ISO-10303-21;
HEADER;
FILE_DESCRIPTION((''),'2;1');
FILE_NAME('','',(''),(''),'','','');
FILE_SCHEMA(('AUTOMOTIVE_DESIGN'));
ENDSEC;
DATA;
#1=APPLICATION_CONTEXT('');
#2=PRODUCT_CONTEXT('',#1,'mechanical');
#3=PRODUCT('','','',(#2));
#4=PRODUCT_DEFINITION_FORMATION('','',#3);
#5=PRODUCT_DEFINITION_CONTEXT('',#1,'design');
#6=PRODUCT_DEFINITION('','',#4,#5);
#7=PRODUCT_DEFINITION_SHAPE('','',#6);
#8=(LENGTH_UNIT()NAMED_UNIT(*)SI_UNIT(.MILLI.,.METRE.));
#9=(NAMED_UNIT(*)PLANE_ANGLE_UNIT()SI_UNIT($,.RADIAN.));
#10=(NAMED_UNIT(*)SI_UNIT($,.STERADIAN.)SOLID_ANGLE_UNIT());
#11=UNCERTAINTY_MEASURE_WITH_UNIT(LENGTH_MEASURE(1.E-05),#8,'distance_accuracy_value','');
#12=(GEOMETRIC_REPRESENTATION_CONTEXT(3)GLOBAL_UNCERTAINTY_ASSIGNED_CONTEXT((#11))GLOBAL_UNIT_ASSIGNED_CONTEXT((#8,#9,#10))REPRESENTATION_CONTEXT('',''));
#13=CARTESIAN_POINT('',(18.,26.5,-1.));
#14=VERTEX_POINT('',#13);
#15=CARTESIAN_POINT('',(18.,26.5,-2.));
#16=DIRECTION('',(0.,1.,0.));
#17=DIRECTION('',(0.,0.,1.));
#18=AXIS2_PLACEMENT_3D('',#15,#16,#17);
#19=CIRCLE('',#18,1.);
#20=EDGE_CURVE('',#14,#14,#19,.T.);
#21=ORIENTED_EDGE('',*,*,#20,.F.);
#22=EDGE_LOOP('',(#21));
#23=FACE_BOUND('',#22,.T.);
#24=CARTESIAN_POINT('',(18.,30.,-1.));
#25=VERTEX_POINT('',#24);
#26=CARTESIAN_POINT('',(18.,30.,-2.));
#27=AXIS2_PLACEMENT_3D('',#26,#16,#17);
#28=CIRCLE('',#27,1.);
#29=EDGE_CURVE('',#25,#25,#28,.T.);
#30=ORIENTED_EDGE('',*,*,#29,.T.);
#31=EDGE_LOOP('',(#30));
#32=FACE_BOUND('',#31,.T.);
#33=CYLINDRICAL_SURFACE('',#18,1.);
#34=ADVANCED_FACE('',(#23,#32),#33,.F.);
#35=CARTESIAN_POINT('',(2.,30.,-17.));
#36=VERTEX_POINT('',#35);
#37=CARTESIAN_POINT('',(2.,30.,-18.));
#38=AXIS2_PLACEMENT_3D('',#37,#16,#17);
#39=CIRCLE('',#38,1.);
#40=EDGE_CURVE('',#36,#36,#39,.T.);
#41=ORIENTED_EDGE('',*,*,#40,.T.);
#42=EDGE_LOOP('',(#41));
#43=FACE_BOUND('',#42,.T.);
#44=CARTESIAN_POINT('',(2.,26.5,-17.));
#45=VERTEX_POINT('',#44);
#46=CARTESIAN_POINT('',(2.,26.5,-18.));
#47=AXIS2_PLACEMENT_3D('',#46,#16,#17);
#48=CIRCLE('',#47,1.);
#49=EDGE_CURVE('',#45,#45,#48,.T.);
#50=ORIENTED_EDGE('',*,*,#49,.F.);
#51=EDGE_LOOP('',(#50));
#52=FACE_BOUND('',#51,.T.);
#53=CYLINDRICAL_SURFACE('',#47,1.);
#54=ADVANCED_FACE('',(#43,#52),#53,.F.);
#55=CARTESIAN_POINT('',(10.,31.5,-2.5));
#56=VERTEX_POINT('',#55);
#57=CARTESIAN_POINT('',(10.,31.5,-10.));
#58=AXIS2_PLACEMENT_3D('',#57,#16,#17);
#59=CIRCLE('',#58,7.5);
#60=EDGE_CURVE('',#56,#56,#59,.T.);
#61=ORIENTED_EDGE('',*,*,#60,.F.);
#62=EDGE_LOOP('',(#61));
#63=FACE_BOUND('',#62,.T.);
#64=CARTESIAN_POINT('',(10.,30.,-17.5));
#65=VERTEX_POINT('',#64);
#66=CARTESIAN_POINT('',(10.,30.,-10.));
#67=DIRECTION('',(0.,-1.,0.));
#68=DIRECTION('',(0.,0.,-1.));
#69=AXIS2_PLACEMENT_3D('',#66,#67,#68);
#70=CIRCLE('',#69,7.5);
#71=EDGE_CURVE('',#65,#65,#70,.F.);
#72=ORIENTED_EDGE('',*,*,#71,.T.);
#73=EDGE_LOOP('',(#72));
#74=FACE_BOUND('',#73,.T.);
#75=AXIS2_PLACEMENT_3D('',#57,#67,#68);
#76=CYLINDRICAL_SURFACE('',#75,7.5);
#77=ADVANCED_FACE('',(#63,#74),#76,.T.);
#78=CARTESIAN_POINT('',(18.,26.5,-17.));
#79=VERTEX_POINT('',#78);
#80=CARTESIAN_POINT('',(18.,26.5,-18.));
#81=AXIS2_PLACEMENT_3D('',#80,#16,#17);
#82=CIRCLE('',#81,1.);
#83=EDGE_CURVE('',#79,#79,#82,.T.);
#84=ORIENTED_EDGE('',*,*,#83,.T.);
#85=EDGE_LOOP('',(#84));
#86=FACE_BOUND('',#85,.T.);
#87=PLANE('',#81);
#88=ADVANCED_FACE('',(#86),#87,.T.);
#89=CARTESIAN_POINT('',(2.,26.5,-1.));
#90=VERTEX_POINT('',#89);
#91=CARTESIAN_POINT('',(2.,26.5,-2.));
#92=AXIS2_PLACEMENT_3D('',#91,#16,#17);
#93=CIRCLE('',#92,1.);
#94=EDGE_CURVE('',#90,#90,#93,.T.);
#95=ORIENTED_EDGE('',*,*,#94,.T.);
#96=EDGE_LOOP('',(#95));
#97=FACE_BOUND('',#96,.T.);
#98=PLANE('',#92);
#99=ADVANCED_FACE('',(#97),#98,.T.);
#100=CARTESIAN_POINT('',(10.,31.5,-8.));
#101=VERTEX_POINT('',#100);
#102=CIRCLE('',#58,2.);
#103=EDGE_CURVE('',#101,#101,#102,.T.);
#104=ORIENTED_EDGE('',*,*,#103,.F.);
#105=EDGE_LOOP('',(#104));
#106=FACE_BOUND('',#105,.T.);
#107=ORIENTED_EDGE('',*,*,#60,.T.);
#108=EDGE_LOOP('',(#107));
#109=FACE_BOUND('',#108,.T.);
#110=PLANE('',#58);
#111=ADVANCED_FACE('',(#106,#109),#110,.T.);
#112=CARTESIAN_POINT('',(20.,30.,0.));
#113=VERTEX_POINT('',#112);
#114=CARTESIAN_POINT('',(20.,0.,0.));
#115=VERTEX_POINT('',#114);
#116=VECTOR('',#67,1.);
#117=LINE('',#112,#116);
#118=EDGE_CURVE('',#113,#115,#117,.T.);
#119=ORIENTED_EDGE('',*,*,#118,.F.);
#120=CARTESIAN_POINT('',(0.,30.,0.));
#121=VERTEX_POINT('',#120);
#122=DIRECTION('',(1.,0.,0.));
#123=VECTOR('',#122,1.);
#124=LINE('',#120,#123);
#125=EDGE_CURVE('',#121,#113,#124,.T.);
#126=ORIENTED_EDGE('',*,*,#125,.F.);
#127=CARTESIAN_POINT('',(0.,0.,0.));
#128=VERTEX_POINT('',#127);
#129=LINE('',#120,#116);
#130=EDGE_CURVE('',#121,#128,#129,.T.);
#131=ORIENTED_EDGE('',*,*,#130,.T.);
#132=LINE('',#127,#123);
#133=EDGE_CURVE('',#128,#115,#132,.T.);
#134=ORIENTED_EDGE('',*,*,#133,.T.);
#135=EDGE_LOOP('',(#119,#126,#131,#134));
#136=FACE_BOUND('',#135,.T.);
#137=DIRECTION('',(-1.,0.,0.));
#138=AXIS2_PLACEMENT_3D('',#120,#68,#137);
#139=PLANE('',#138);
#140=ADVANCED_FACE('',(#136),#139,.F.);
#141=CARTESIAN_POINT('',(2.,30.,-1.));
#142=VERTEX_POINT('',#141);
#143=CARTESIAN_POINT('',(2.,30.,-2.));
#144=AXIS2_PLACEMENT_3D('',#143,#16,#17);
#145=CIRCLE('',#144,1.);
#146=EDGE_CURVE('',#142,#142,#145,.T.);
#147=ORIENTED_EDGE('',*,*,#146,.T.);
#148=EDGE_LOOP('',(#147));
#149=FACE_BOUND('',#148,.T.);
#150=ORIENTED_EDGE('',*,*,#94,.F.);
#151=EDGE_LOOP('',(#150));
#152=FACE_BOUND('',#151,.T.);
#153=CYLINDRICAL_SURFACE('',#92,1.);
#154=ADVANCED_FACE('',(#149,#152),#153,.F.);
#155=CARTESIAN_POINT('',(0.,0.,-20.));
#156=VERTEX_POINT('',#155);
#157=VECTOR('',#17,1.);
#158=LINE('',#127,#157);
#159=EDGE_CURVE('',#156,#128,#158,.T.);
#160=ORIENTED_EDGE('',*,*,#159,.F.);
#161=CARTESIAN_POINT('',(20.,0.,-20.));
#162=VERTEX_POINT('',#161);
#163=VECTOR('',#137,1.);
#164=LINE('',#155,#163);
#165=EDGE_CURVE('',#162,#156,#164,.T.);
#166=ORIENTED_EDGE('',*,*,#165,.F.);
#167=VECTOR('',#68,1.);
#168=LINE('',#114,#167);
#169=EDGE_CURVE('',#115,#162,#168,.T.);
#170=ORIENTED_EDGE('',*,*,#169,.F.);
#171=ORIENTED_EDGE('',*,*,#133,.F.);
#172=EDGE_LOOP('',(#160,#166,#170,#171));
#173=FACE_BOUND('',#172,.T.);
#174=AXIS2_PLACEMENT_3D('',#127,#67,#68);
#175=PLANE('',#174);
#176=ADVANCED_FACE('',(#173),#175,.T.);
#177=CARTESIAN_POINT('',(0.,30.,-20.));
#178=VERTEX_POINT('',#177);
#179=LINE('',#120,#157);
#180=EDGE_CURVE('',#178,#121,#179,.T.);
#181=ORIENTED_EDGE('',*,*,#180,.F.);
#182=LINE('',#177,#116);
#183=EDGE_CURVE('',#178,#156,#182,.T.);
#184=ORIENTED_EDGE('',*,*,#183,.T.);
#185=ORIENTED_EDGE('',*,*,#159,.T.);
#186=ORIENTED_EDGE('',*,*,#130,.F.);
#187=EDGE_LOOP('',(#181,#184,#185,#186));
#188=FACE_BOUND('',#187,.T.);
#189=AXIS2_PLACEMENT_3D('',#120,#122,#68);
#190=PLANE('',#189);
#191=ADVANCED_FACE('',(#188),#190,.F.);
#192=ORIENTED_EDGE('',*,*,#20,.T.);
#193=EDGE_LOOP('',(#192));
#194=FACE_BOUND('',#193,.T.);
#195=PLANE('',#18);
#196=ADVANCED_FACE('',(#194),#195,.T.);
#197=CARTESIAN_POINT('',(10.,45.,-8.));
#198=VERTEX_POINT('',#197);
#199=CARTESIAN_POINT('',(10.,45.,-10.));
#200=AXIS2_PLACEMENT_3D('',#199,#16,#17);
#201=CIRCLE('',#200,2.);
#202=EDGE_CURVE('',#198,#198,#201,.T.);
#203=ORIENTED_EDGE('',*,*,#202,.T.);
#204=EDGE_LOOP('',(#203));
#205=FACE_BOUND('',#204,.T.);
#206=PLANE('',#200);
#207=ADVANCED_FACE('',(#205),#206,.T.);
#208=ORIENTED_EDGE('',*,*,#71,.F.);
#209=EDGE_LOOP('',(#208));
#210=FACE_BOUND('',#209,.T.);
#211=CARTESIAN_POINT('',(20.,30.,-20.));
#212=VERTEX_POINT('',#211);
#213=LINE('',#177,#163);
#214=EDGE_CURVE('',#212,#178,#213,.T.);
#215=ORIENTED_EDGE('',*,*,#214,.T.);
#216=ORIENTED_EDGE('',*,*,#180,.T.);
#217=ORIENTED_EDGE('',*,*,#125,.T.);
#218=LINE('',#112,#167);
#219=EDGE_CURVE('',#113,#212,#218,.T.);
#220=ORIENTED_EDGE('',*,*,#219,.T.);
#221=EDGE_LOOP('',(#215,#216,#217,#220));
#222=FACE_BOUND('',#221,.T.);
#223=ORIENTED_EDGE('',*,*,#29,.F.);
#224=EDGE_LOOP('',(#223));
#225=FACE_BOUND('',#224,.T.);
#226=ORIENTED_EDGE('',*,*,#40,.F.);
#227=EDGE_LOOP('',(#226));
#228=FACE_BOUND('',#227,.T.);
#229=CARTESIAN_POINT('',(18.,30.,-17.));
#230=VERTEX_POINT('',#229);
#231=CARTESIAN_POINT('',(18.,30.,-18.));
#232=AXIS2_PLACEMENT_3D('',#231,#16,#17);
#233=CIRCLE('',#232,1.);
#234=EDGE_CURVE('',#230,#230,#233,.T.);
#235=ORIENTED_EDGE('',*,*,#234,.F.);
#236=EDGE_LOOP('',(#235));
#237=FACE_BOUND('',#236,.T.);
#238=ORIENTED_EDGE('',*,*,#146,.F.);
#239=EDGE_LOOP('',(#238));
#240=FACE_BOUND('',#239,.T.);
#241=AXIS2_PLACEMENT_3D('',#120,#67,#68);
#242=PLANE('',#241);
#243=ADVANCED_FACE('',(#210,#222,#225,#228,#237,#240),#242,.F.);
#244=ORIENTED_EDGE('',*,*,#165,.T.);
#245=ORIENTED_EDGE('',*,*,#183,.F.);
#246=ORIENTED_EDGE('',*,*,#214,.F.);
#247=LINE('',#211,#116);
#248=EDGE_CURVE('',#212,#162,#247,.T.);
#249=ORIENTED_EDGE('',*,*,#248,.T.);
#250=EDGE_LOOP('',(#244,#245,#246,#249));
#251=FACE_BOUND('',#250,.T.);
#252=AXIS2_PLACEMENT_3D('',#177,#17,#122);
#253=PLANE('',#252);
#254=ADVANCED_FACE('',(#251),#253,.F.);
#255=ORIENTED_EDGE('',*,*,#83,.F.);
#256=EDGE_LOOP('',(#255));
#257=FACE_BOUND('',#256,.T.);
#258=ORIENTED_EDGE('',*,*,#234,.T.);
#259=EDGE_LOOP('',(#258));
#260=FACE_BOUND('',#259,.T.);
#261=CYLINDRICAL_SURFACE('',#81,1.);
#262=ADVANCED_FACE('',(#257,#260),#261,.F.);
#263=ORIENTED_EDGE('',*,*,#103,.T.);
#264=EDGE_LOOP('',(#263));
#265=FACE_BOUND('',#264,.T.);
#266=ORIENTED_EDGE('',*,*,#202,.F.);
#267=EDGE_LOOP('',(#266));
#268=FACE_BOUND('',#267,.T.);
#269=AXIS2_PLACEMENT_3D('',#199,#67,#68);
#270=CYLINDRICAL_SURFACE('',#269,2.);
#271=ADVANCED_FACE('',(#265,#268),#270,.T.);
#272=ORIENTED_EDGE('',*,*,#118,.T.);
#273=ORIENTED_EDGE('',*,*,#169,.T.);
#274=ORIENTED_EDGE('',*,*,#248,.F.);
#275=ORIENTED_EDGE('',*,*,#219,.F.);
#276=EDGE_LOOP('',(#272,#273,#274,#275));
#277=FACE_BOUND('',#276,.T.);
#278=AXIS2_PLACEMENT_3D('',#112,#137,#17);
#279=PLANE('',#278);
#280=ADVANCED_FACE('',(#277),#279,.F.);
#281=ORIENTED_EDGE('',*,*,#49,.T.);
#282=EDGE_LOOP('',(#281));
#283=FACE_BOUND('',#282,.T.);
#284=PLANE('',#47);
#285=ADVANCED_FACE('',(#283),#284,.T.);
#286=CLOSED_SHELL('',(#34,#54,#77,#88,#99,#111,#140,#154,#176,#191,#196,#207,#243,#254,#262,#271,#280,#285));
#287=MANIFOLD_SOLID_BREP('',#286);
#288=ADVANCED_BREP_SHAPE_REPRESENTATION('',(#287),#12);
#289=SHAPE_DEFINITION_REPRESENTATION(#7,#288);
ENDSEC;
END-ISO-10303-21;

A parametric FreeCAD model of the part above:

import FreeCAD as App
import Part
import Sketcher

V = App.Vector
Q = App.Units.Quantity

doc = App.newDocument("Part")
body = doc.addObject("PartDesign::Body", "Body")

# Sketch on XZ plane
sketch1 = doc.addObject("Sketcher::SketchObject", "Sketch")
body.addObject(sketch1)
sketch1.AttachmentSupport = (doc.XZ_Plane, [""])
sketch1.MapMode = "FlatFace"
sketch1.addGeometry([
    Part.LineSegment(V(0, -20, 0), V(0, 0, 0)),
    Part.LineSegment(V(0, 0, 0), V(20, 0, 0)),
    Part.LineSegment(V(20, 0, 0), V(20, -20, 0)),
    Part.LineSegment(V(20, -20, 0), V(0, -20, 0)),
], False)
sketch1.addConstraint([
    Sketcher.Constraint("Coincident", 0, 2, 1, 1),
    Sketcher.Constraint("Coincident", 1, 2, 2, 1),
    Sketcher.Constraint("Coincident", 2, 2, 3, 1),
    Sketcher.Constraint("Coincident", 3, 2, 0, 1),
    Sketcher.Constraint("Vertical", 0),
    Sketcher.Constraint("Horizontal", 1),
    Sketcher.Constraint("Vertical", 2),
    Sketcher.Constraint("Horizontal", 3),
    Sketcher.Constraint("Coincident", 0, 2, -1, 1),
    Sketcher.Constraint("Equal", 3, 0),
    Sketcher.Constraint("DistanceX", 1, 1, 1, 2, Q("20 mm")),
])
pad1 = doc.addObject("PartDesign::Pad", "Pad")
body.addObject(pad1)
pad1.Profile = sketch1
pad1.Length = 30
pad1.Reversed = True

# Sketch on XZ plane
sketch2 = doc.addObject("Sketcher::SketchObject", "Sketch001")
body.addObject(sketch2)
sketch2.AttachmentSupport = (doc.XZ_Plane, [""])
sketch2.MapMode = "FlatFace"
sketch2.AttachmentOffset = App.Placement(V(0, 0, -30), App.Rotation())
sketch2.addGeometry([
    Part.Circle(V(2, -18, 0), V(0, 0, 1), 1),
    Part.Circle(V(18, -18, 0), V(0, 0, 1), 1),
    Part.Circle(V(18, -2, 0), V(0, 0, 1), 1),
    Part.Circle(V(2, -2, 0), V(0, 0, 1), 1),
], False)
sketch2.addConstraint([
    Sketcher.Constraint("Equal", 0, 1),
    Sketcher.Constraint("Equal", 1, 2),
    Sketcher.Constraint("Equal", 2, 3),
    Sketcher.Constraint("Horizontal", 0, 3, 1, 3),
    Sketcher.Constraint("Horizontal", 2, 3, 3, 3),
    Sketcher.Constraint("Vertical", 1, 3, 2, 3),
    Sketcher.Constraint("Vertical", 0, 3, 3, 3),
    Sketcher.Constraint("Diameter", 0, Q("2 mm")),
    Sketcher.Constraint("DistanceX", -1, 1, 0, 3, Q("2 mm")),
    Sketcher.Constraint("DistanceY", 0, 3, -1, 1, Q("18 mm")),
    Sketcher.Constraint("DistanceX", -1, 1, 1, 3, Q("18 mm")),
    Sketcher.Constraint("DistanceY", 2, 3, -1, 1, Q("2 mm")),
])
pocket1 = doc.addObject("PartDesign::Pocket", "Pocket")
body.addObject(pocket1)
pocket1.Profile = sketch2
pocket1.Length = 3.5
pocket1.Reversed = True

# Sketch on XZ plane
sketch3 = doc.addObject("Sketcher::SketchObject", "Sketch002")
body.addObject(sketch3)
sketch3.AttachmentSupport = (doc.XZ_Plane, [""])
sketch3.MapMode = "FlatFace"
sketch3.AttachmentOffset = App.Placement(V(0, 0, -30), App.Rotation())
sketch3.addGeometry(Part.Circle(V(10, -10, 0), V(0, 0, 1), 8), False)
sketch3.addConstraint([
    Sketcher.Constraint("Diameter", 0, Q("15 mm")),
    Sketcher.Constraint("DistanceX", -1, 1, 0, 3, Q("10 mm")),
    Sketcher.Constraint("DistanceY", 0, 3, -1, 1, Q("10 mm")),
])
pad2 = doc.addObject("PartDesign::Pad", "Pad001")
body.addObject(pad2)
pad2.Profile = sketch3
pad2.Length = 1.5
pad2.Reversed = True

# Sketch on XZ plane
sketch4 = doc.addObject("Sketcher::SketchObject", "Sketch003")
body.addObject(sketch4)
sketch4.AttachmentSupport = (doc.XZ_Plane, [""])
sketch4.MapMode = "FlatFace"
sketch4.AttachmentOffset = App.Placement(V(0, 0, -31.5), App.Rotation())
sketch4.addGeometry(Part.Circle(V(10, -10, 0), V(0, 0, 1), 2), False)
sketch4.addConstraint([
    Sketcher.Constraint("Diameter", 0, Q("4 mm")),
    Sketcher.Constraint("DistanceX", -1, 1, 0, 3, Q("10 mm")),
    Sketcher.Constraint("DistanceY", 0, 3, -1, 1, Q("10 mm")),
])
pad3 = doc.addObject("PartDesign::Pad", "Pad002")
body.addObject(pad3)
pad3.Profile = sketch4
pad3.Length = 13.5
pad3.Reversed = True

doc.recompute()
